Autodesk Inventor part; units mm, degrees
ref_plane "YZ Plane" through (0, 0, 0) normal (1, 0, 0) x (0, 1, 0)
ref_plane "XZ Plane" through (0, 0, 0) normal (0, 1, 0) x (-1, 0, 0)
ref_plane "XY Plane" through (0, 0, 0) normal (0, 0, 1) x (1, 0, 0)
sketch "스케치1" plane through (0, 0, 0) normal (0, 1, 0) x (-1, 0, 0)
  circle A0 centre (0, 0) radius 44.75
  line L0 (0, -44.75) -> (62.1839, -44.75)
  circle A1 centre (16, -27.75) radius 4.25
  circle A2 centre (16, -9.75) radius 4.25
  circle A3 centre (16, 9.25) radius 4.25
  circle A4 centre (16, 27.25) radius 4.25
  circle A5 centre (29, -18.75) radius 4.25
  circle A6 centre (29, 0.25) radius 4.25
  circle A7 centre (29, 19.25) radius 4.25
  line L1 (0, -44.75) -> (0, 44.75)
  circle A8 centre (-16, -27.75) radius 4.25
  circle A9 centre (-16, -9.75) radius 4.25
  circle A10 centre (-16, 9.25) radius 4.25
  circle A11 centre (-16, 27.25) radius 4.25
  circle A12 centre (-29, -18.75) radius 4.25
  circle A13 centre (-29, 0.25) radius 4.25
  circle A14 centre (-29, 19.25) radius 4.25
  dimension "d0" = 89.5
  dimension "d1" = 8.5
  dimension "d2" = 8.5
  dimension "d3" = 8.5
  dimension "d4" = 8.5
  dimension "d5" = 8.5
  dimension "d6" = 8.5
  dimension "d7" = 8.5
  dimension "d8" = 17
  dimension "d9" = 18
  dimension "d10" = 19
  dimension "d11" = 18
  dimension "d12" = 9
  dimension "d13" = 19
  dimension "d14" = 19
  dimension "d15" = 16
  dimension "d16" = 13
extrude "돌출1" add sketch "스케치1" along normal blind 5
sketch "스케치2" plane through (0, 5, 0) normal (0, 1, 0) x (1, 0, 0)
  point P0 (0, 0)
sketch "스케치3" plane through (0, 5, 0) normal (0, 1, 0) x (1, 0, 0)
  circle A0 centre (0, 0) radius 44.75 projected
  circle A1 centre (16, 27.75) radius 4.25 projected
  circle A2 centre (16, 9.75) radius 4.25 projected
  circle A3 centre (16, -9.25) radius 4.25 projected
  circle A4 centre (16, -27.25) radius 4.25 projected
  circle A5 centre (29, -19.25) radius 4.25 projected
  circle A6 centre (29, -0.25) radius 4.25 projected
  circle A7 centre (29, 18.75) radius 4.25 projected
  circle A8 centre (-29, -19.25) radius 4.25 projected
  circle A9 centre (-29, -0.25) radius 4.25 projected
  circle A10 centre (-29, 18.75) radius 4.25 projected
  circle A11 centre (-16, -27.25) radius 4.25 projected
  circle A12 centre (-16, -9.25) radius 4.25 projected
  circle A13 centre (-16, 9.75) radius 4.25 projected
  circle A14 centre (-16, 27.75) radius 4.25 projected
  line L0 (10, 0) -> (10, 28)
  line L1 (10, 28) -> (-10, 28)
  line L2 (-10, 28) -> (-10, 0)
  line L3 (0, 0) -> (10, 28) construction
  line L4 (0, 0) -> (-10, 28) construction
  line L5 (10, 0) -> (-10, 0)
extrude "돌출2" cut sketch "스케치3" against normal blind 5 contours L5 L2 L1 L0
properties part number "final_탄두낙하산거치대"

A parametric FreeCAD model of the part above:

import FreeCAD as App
import Part
import Sketcher
from FreeCAD import Vector

doc = App.newDocument("Part")
body = doc.addObject("PartDesign::Body", "Body")

sketch1 = body.newObject("Sketcher::SketchObject", "Sketch")
sketch1.AttachmentSupport = (doc.getObject("XZ_Plane"), [""])
sketch1.MapMode = "FlatFace"
sketch1.addGeometry([
    Part.Circle(Vector(0, 0, 0), Vector(0, 0, 1), 44.75),
    Part.Circle(Vector(-16, -27.75, 0), Vector(0, 0, 1), 4.25),
    Part.Circle(Vector(-16, -9.75, 0), Vector(0, 0, 1), 4.25),
    Part.Circle(Vector(-29, -18.75, 0), Vector(0, 0, 1), 4.25),
    Part.Circle(Vector(-16, 9.25, 0), Vector(0, 0, 1), 4.25),
    Part.Circle(Vector(-29, 0.25, 0), Vector(0, 0, 1), 4.25),
    Part.Circle(Vector(-29, 19.25, 0), Vector(0, 0, 1), 4.25),
    Part.Circle(Vector(-16, 27.25, 0), Vector(0, 0, 1), 4.25),
    Part.Circle(Vector(16, 27.25, 0), Vector(0, 0, 1), 4.25),
    Part.Circle(Vector(16, -27.75, 0), Vector(0, 0, 1), 4.25),
    Part.Circle(Vector(29, -18.75, 0), Vector(0, 0, 1), 4.25),
    Part.Circle(Vector(16, -9.75, 0), Vector(0, 0, 1), 4.25),
    Part.Circle(Vector(29, 0.25, 0), Vector(0, 0, 1), 4.25),
    Part.Circle(Vector(29, 19.25, 0), Vector(0, 0, 1), 4.25),
    Part.Circle(Vector(16, 9.25, 0), Vector(0, 0, 1), 4.25),
], False)
sketch1.addConstraint([
    Sketcher.Constraint("Coincident", 0, 3, -1, 1),
    Sketcher.Constraint("Equal", 1, 2),
    Sketcher.Constraint("Equal", 2, 3),
    Sketcher.Constraint("Equal", 3, 4),
    Sketcher.Constraint("Equal", 4, 5),
    Sketcher.Constraint("Equal", 5, 6),
    Sketcher.Constraint("Equal", 6, 7),
    Sketcher.Constraint("Equal", 7, 8),
    Sketcher.Constraint("Equal", 8, 9),
    Sketcher.Constraint("Equal", 9, 10),
    Sketcher.Constraint("Equal", 10, 11),
    Sketcher.Constraint("Equal", 11, 12),
    Sketcher.Constraint("Equal", 12, 13),
    Sketcher.Constraint("Equal", 13, 14),
    Sketcher.Constraint("Symmetric", 7, 3, 8, 3, -2),
    Sketcher.Constraint("Symmetric", 1, 3, 9, 3, -2),
    Sketcher.Constraint("Symmetric", 3, 3, 10, 3, -2),
    Sketcher.Constraint("Symmetric", 2, 3, 11, 3, -2),
    Sketcher.Constraint("Symmetric", 5, 3, 12, 3, -2),
    Sketcher.Constraint("Symmetric", 6, 3, 13, 3, -2),
    Sketcher.Constraint("Symmetric", 4, 3, 14, 3, -2),
    Sketcher.Constraint("Vertical", 1, 3, 2, 3),
    Sketcher.Constraint("Vertical", 2, 3, 4, 3),
    Sketcher.Constraint("Vertical", 3, 3, 5, 3),
    Sketcher.Constraint("Vertical", 5, 3, 6, 3),
    Sketcher.Constraint("Vertical", 4, 3, 7, 3),
    Sketcher.Constraint("Diameter", 0, 89.5),
    Sketcher.Constraint("Diameter", 1, 8.5),
    Sketcher.Constraint("DistanceX", 1, 3, -1, 1, 16.0),
    Sketcher.Constraint("DistanceY", 1, 3, 2, 3, 18.0),
    Sketcher.Constraint("DistanceX", 3, 3, 1, 3, 13.0),
    Sketcher.Constraint("DistanceY", 1, 3, 3, 3, 9.0),
    Sketcher.Constraint("DistanceY", 2, 3, 4, 3, 19.0),
    Sketcher.Constraint("DistanceY", 5, 3, 4, 3, 9.0),
    Sketcher.Constraint("DistanceY", 5, 3, 6, 3, 19.0),
    Sketcher.Constraint("DistanceY", 4, 3, 7, 3, 18.0),
    Sketcher.Constraint("DistanceY", 1, 3, -1, 1, 27.75),
])
pad1 = body.newObject("PartDesign::Pad", "Pad")
pad1.Profile = sketch1
pad1.Length = 5
pad1.Reversed = True

sketch2 = body.newObject("Sketcher::SketchObject", "Sketch001")
sketch2.AttachmentSupport = (doc.getObject("XZ_Plane"), [""])
sketch2.MapMode = "FlatFace"
sketch2.AttachmentOffset = App.Placement(Vector(0, 0, -5), App.Rotation())
sketch2.addGeometry([
    Part.LineSegment(Vector(-10, 0, 0), Vector(10, 0, 0)),
    Part.LineSegment(Vector(10, 0, 0), Vector(10, -28, 0)),
    Part.LineSegment(Vector(10, -28, 0), Vector(-10, -28, 0)),
    Part.LineSegment(Vector(-10, -28, 0), Vector(-10, 0, 0)),
], False)
sketch2.addConstraint([
    Sketcher.Constraint("Coincident", 0, 2, 1, 1),
    Sketcher.Constraint("Coincident", 1, 2, 2, 1),
    Sketcher.Constraint("Coincident", 2, 2, 3, 1),
    Sketcher.Constraint("Coincident", 3, 2, 0, 1),
    Sketcher.Constraint("Horizontal", 0),
    Sketcher.Constraint("Vertical", 1),
    Sketcher.Constraint("Horizontal", 2),
    Sketcher.Constraint("Vertical", 3),
    Sketcher.Constraint("Symmetric", 0, 2, 3, 2, -1, 1),
    Sketcher.Constraint("DistanceX", 0, 1, 0, 2, 20.0),
    Sketcher.Constraint("DistanceY", 1, 2, 1, 1, 28.0),
])
pocket1 = body.newObject("PartDesign::Pocket", "Pocket")
pocket1.Profile = sketch2
pocket1.Length = 5
pocket1.Reversed = True

doc.recompute()
